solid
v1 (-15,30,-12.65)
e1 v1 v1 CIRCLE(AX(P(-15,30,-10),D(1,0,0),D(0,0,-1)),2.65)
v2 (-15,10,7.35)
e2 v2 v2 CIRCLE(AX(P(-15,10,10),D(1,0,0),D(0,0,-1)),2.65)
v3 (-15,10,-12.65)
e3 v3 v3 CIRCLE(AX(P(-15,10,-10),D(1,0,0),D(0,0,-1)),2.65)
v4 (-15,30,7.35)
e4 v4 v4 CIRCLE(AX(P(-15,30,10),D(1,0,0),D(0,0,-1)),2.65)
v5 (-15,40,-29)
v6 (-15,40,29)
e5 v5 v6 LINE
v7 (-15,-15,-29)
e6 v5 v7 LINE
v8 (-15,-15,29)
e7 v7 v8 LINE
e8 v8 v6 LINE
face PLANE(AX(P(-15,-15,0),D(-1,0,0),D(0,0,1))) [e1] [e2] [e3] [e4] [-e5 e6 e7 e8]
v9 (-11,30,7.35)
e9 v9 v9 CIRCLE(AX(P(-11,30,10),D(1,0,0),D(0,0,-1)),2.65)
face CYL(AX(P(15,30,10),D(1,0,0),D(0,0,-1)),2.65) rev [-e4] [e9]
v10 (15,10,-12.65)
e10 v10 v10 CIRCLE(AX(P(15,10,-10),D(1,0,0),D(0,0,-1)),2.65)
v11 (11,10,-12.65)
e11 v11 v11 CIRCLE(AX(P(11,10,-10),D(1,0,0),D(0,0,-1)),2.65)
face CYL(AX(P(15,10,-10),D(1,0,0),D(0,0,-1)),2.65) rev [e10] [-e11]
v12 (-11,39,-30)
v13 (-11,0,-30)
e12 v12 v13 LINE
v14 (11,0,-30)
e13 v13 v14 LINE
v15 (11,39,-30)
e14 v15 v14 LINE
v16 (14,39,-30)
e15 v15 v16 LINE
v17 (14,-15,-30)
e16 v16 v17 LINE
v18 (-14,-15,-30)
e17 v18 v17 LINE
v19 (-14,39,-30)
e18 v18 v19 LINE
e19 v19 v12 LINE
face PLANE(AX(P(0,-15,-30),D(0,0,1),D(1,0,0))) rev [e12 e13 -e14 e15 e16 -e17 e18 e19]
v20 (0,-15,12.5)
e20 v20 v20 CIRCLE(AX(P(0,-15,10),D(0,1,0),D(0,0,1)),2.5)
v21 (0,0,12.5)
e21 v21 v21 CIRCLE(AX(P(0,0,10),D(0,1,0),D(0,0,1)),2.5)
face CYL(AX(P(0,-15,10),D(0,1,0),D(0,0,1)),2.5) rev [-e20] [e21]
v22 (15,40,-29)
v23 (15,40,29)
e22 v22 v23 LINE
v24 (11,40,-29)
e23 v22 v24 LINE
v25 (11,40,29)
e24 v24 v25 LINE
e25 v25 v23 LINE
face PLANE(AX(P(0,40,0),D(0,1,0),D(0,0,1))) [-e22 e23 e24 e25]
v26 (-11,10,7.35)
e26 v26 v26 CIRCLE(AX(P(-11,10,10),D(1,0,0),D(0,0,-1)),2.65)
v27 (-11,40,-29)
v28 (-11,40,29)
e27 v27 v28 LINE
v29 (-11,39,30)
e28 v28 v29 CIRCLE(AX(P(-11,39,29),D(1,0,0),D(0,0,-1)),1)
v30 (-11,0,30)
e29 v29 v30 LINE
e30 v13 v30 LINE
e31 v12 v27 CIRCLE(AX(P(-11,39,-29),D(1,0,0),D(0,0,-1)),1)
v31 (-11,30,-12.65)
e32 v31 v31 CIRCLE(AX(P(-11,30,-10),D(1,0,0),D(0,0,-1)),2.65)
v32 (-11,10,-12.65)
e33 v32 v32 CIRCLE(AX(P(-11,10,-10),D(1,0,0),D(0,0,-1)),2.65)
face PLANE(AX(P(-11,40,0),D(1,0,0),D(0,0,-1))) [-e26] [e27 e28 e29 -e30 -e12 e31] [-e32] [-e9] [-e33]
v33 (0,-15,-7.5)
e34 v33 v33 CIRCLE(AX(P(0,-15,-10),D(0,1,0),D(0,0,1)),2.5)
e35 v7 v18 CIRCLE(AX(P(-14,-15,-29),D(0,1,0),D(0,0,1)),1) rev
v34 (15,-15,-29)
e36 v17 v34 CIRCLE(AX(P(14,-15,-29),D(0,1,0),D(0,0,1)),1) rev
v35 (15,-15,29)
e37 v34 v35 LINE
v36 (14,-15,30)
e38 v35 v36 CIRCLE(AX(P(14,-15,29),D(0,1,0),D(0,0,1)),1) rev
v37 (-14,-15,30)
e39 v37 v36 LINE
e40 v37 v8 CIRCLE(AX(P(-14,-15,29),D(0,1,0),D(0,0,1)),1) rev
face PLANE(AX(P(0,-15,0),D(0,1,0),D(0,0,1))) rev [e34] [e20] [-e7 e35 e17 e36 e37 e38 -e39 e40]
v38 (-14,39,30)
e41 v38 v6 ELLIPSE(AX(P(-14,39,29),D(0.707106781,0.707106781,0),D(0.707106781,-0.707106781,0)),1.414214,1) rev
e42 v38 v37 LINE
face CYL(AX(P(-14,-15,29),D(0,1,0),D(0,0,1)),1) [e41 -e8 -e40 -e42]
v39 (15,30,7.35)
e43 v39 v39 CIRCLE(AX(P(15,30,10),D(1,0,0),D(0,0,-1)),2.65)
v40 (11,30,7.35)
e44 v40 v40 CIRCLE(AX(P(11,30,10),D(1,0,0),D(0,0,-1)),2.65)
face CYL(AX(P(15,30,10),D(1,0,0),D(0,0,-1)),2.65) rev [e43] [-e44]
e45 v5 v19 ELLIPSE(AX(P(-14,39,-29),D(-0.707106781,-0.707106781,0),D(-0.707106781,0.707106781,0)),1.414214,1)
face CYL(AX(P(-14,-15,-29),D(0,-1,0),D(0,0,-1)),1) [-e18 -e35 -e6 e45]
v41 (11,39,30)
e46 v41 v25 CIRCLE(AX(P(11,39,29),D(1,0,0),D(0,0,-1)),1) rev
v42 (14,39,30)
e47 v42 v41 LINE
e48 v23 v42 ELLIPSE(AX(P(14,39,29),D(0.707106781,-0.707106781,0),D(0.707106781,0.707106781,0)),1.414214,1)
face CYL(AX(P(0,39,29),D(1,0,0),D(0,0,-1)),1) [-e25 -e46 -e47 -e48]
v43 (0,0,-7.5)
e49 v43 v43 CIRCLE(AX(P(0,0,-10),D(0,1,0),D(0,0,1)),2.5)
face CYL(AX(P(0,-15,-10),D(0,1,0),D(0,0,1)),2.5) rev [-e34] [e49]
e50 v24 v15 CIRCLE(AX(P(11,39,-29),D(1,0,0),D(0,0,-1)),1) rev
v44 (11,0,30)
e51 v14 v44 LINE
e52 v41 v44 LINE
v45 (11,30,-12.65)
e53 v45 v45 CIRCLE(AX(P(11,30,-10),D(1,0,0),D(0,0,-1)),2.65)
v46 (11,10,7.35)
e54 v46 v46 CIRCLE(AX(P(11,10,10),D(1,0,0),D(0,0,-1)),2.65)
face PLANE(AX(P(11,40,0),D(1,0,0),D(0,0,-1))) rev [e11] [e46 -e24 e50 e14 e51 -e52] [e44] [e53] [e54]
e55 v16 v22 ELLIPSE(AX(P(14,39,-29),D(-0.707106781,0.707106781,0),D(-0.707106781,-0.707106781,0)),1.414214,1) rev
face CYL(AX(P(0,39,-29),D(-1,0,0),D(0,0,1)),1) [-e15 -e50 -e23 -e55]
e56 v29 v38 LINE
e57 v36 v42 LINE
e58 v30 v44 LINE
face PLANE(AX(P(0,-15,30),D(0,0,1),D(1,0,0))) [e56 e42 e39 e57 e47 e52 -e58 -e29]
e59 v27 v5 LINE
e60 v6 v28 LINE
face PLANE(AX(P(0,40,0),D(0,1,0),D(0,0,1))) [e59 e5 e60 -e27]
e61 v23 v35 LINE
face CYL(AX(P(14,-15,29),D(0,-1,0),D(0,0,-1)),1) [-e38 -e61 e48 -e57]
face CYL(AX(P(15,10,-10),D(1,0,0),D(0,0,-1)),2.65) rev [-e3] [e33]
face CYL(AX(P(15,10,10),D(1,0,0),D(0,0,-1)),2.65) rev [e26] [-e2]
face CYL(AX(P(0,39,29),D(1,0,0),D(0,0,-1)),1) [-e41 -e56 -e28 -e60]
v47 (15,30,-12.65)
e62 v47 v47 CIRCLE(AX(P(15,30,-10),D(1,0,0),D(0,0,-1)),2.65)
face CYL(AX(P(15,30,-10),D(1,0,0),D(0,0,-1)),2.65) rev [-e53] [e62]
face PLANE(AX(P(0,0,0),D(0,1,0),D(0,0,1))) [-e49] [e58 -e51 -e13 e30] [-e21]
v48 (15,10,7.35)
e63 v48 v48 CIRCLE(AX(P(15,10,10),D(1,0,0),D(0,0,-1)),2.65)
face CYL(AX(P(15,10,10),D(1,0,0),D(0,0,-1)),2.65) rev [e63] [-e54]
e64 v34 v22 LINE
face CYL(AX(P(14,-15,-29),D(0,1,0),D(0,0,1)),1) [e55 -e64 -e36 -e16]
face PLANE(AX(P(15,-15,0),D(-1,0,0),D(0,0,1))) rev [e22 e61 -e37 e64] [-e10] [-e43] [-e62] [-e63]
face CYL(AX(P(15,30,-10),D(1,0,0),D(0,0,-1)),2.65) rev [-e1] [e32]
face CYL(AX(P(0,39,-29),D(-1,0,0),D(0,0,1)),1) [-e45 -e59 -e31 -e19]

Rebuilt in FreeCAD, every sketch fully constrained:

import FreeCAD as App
import Part
import Sketcher
from FreeCAD import Vector
Q = App.Units.Quantity


def edges_at(feature, points):
    """Names of the edges that pass closest to the given points."""
    edges = feature.Shape.Edges
    near = lambda p: min(range(len(edges)), key=lambda i: edges[i].distToShape(Part.Vertex(*p))[0])
    return sorted({f"Edge{near(p) + 1}" for p in points})

doc = App.newDocument("Part")
body = doc.addObject("PartDesign::Body", "Body")

# Sketch on XZ plane
sketch1 = body.newObject("Sketcher::SketchObject", "Sketch")
sketch1.AttachmentSupport = (doc.getObject("XZ_Plane"), [""])
sketch1.MapMode = "FlatFace"
sketch1.addGeometry(Part.LineSegment(Vector(15, 30, 0), Vector(15, -30, 0)), False)
sketch1.addGeometry(Part.LineSegment(Vector(15, -30, 0), Vector(-15, -30, 0)), False)
sketch1.addGeometry(Part.LineSegment(Vector(-15, -30, 0), Vector(-15, 30, 0)), False)
sketch1.addGeometry(Part.LineSegment(Vector(-15, 30, 0), Vector(15, 30, 0)), False)
sketch1.addGeometry(Part.Circle(Vector(0, 10, 0), Vector(0, 0, 1), 2.5), False)
sketch1.addGeometry(Part.Circle(Vector(0, -10, 0), Vector(0, 0, 1), 2.5), False)
sketch1.addConstraint(Sketcher.Constraint("Coincident", 0, 2, 1, 1))
sketch1.addConstraint(Sketcher.Constraint("Coincident", 1, 2, 2, 1))
sketch1.addConstraint(Sketcher.Constraint("Coincident", 2, 2, 3, 1))
sketch1.addConstraint(Sketcher.Constraint("Coincident", 3, 2, 0, 1))
sketch1.addConstraint(Sketcher.Constraint("Vertical", 0))
sketch1.addConstraint(Sketcher.Constraint("Horizontal", 1))
sketch1.addConstraint(Sketcher.Constraint("Vertical", 2))
sketch1.addConstraint(Sketcher.Constraint("Horizontal", 3))
sketch1.addConstraint(Sketcher.Constraint("Equal", 4, 5))
sketch1.addConstraint(Sketcher.Constraint("Symmetric", 4, 3, 5, 3, -1, 1))
sketch1.addConstraint(Sketcher.Constraint("Symmetric", 0, 2, 2, 2, -1, 1))
sketch1.addConstraint(Sketcher.Constraint("PointOnObject", 4, 3, -2))
sketch1.addConstraint(Sketcher.Constraint("Diameter", 4, Q("5 mm")))
sketch1.addConstraint(Sketcher.Constraint("DistanceX", 1, 2, 1, 1, Q("30 mm")))
sketch1.addConstraint(Sketcher.Constraint("DistanceY", 0, 2, 0, 1, Q("60 mm")))
sketch1.addConstraint(Sketcher.Constraint("DistanceY", -1, 1, 4, 3, Q("10 mm")))
pad1 = body.newObject("PartDesign::Pad", "Pad")
pad1.Profile = sketch1
pad1.Length = 15

# Sketch on XZ plane
sketch2 = body.newObject("Sketcher::SketchObject", "Sketch001")
sketch2.AttachmentSupport = (doc.getObject("XZ_Plane"), [""])
sketch2.MapMode = "FlatFace"
sketch2.addGeometry(Part.LineSegment(Vector(-15, -30, 0), Vector(-15, 30, 0)), False)
sketch2.addGeometry(Part.LineSegment(Vector(-15, 30, 0), Vector(-11, 30, 0)), False)
sketch2.addGeometry(Part.LineSegment(Vector(-11, 30, 0), Vector(-11, -30, 0)), False)
sketch2.addGeometry(Part.LineSegment(Vector(-11, -30, 0), Vector(-15, -30, 0)), False)
sketch2.addGeometry(Part.LineSegment(Vector(11, -30, 0), Vector(11, 30, 0)), False)
sketch2.addGeometry(Part.LineSegment(Vector(11, 30, 0), Vector(15, 30, 0)), False)
sketch2.addGeometry(Part.LineSegment(Vector(15, 30, 0), Vector(15, -30, 0)), False)
sketch2.addGeometry(Part.LineSegment(Vector(15, -30, 0), Vector(11, -30, 0)), False)
sketch2.addConstraint(Sketcher.Constraint("Coincident", 0, 2, 1, 1))
sketch2.addConstraint(Sketcher.Constraint("Coincident", 1, 2, 2, 1))
sketch2.addConstraint(Sketcher.Constraint("Coincident", 2, 2, 3, 1))
sketch2.addConstraint(Sketcher.Constraint("Coincident", 3, 2, 0, 1))
sketch2.addConstraint(Sketcher.Constraint("Coincident", 4, 2, 5, 1))
sketch2.addConstraint(Sketcher.Constraint("Coincident", 5, 2, 6, 1))
sketch2.addConstraint(Sketcher.Constraint("Coincident", 6, 2, 7, 1))
sketch2.addConstraint(Sketcher.Constraint("Coincident", 7, 2, 4, 1))
sketch2.addConstraint(Sketcher.Constraint("Vertical", 0))
sketch2.addConstraint(Sketcher.Constraint("Horizontal", 1))
sketch2.addConstraint(Sketcher.Constraint("Vertical", 2))
sketch2.addConstraint(Sketcher.Constraint("Horizontal", 3))
sketch2.addConstraint(Sketcher.Constraint("Vertical", 4))
sketch2.addConstraint(Sketcher.Constraint("Horizontal", 5))
sketch2.addConstraint(Sketcher.Constraint("Vertical", 6))
sketch2.addConstraint(Sketcher.Constraint("Horizontal", 7))
sketch2.addConstraint(Sketcher.Constraint("Symmetric", 2, 2, 4, 2, -1, 1))
sketch2.addConstraint(Sketcher.Constraint("Symmetric", 0, 2, 6, 2, -1, 1))
sketch2.addConstraint(Sketcher.Constraint("Horizontal", 1, 2, 4, 2))
sketch2.addConstraint(Sketcher.Constraint("DistanceX", 1, 1, 1, 2, Q("4 mm")))
sketch2.addConstraint(Sketcher.Constraint("DistanceY", 0, 1, 0, 2, Q("60 mm")))
sketch2.addConstraint(Sketcher.Constraint("DistanceX", 0, 2, -1, 1, Q("15 mm")))
pad2 = body.newObject("PartDesign::Pad", "Pad001")
pad2.Profile = sketch2
pad2.Length = 40
pad2.Reversed = True

# Sketch on YZ plane
sketch3 = body.newObject("Sketcher::SketchObject", "Sketch002")
sketch3.AttachmentSupport = (doc.getObject("YZ_Plane"), [""])
sketch3.MapMode = "FlatFace"
sketch3.AttachmentOffset = App.Placement(Vector(0, 0, 15), App.Rotation())
sketch3.addGeometry(Part.Circle(Vector(10, 10, 0), Vector(0, 0, 1), 2.6), False)
sketch3.addGeometry(Part.Circle(Vector(10, -10, 0), Vector(0, 0, 1), 2.6), False)
sketch3.addConstraint(Sketcher.Constraint("Equal", 0, 1))
sketch3.addConstraint(Sketcher.Constraint("Symmetric", 0, 3, 1, 3, -1))
sketch3.addConstraint(Sketcher.Constraint("Diameter", 0, Q("5.3 mm")))
sketch3.addConstraint(Sketcher.Constraint("DistanceX", -1, 1, 0, 3, Q("10 mm")))
sketch3.addConstraint(Sketcher.Constraint("DistanceY", -1, 1, 0, 3, Q("10 mm")))
doc.recompute()
hole = body.newObject("PartDesign::Hole", "Hole")
hole.Profile = sketch3
hole.ThreadType = "None"
hole.Diameter = 5.3
hole.DepthType = "ThroughAll"
doc.recompute()

linearpattern = body.newObject("PartDesign::LinearPattern", "LinearPattern")
linearpattern.Originals = [hole]
linearpattern.Direction = (doc.getObject("Y_Axis"), [""])
linearpattern.Mode = "offset"
linearpattern.Offset = 20
linearpattern.Occurrences = 2
body.Tip = linearpattern
doc.recompute()

fillet = body.newObject("PartDesign::Fillet", "Fillet")
fillet.Base = (linearpattern, edges_at(linearpattern, [
    (-15, 12.5, 30),
    (-15, 12.5, -30),
    (15, 12.5, -30),
    (15, 12.5, 30),
    (-13, 40, -30),
    (-13, 40, 30),
    (13, 40, -30),
    (13, 40, 30),
]))
fillet.Radius = 1

doc.recompute()
